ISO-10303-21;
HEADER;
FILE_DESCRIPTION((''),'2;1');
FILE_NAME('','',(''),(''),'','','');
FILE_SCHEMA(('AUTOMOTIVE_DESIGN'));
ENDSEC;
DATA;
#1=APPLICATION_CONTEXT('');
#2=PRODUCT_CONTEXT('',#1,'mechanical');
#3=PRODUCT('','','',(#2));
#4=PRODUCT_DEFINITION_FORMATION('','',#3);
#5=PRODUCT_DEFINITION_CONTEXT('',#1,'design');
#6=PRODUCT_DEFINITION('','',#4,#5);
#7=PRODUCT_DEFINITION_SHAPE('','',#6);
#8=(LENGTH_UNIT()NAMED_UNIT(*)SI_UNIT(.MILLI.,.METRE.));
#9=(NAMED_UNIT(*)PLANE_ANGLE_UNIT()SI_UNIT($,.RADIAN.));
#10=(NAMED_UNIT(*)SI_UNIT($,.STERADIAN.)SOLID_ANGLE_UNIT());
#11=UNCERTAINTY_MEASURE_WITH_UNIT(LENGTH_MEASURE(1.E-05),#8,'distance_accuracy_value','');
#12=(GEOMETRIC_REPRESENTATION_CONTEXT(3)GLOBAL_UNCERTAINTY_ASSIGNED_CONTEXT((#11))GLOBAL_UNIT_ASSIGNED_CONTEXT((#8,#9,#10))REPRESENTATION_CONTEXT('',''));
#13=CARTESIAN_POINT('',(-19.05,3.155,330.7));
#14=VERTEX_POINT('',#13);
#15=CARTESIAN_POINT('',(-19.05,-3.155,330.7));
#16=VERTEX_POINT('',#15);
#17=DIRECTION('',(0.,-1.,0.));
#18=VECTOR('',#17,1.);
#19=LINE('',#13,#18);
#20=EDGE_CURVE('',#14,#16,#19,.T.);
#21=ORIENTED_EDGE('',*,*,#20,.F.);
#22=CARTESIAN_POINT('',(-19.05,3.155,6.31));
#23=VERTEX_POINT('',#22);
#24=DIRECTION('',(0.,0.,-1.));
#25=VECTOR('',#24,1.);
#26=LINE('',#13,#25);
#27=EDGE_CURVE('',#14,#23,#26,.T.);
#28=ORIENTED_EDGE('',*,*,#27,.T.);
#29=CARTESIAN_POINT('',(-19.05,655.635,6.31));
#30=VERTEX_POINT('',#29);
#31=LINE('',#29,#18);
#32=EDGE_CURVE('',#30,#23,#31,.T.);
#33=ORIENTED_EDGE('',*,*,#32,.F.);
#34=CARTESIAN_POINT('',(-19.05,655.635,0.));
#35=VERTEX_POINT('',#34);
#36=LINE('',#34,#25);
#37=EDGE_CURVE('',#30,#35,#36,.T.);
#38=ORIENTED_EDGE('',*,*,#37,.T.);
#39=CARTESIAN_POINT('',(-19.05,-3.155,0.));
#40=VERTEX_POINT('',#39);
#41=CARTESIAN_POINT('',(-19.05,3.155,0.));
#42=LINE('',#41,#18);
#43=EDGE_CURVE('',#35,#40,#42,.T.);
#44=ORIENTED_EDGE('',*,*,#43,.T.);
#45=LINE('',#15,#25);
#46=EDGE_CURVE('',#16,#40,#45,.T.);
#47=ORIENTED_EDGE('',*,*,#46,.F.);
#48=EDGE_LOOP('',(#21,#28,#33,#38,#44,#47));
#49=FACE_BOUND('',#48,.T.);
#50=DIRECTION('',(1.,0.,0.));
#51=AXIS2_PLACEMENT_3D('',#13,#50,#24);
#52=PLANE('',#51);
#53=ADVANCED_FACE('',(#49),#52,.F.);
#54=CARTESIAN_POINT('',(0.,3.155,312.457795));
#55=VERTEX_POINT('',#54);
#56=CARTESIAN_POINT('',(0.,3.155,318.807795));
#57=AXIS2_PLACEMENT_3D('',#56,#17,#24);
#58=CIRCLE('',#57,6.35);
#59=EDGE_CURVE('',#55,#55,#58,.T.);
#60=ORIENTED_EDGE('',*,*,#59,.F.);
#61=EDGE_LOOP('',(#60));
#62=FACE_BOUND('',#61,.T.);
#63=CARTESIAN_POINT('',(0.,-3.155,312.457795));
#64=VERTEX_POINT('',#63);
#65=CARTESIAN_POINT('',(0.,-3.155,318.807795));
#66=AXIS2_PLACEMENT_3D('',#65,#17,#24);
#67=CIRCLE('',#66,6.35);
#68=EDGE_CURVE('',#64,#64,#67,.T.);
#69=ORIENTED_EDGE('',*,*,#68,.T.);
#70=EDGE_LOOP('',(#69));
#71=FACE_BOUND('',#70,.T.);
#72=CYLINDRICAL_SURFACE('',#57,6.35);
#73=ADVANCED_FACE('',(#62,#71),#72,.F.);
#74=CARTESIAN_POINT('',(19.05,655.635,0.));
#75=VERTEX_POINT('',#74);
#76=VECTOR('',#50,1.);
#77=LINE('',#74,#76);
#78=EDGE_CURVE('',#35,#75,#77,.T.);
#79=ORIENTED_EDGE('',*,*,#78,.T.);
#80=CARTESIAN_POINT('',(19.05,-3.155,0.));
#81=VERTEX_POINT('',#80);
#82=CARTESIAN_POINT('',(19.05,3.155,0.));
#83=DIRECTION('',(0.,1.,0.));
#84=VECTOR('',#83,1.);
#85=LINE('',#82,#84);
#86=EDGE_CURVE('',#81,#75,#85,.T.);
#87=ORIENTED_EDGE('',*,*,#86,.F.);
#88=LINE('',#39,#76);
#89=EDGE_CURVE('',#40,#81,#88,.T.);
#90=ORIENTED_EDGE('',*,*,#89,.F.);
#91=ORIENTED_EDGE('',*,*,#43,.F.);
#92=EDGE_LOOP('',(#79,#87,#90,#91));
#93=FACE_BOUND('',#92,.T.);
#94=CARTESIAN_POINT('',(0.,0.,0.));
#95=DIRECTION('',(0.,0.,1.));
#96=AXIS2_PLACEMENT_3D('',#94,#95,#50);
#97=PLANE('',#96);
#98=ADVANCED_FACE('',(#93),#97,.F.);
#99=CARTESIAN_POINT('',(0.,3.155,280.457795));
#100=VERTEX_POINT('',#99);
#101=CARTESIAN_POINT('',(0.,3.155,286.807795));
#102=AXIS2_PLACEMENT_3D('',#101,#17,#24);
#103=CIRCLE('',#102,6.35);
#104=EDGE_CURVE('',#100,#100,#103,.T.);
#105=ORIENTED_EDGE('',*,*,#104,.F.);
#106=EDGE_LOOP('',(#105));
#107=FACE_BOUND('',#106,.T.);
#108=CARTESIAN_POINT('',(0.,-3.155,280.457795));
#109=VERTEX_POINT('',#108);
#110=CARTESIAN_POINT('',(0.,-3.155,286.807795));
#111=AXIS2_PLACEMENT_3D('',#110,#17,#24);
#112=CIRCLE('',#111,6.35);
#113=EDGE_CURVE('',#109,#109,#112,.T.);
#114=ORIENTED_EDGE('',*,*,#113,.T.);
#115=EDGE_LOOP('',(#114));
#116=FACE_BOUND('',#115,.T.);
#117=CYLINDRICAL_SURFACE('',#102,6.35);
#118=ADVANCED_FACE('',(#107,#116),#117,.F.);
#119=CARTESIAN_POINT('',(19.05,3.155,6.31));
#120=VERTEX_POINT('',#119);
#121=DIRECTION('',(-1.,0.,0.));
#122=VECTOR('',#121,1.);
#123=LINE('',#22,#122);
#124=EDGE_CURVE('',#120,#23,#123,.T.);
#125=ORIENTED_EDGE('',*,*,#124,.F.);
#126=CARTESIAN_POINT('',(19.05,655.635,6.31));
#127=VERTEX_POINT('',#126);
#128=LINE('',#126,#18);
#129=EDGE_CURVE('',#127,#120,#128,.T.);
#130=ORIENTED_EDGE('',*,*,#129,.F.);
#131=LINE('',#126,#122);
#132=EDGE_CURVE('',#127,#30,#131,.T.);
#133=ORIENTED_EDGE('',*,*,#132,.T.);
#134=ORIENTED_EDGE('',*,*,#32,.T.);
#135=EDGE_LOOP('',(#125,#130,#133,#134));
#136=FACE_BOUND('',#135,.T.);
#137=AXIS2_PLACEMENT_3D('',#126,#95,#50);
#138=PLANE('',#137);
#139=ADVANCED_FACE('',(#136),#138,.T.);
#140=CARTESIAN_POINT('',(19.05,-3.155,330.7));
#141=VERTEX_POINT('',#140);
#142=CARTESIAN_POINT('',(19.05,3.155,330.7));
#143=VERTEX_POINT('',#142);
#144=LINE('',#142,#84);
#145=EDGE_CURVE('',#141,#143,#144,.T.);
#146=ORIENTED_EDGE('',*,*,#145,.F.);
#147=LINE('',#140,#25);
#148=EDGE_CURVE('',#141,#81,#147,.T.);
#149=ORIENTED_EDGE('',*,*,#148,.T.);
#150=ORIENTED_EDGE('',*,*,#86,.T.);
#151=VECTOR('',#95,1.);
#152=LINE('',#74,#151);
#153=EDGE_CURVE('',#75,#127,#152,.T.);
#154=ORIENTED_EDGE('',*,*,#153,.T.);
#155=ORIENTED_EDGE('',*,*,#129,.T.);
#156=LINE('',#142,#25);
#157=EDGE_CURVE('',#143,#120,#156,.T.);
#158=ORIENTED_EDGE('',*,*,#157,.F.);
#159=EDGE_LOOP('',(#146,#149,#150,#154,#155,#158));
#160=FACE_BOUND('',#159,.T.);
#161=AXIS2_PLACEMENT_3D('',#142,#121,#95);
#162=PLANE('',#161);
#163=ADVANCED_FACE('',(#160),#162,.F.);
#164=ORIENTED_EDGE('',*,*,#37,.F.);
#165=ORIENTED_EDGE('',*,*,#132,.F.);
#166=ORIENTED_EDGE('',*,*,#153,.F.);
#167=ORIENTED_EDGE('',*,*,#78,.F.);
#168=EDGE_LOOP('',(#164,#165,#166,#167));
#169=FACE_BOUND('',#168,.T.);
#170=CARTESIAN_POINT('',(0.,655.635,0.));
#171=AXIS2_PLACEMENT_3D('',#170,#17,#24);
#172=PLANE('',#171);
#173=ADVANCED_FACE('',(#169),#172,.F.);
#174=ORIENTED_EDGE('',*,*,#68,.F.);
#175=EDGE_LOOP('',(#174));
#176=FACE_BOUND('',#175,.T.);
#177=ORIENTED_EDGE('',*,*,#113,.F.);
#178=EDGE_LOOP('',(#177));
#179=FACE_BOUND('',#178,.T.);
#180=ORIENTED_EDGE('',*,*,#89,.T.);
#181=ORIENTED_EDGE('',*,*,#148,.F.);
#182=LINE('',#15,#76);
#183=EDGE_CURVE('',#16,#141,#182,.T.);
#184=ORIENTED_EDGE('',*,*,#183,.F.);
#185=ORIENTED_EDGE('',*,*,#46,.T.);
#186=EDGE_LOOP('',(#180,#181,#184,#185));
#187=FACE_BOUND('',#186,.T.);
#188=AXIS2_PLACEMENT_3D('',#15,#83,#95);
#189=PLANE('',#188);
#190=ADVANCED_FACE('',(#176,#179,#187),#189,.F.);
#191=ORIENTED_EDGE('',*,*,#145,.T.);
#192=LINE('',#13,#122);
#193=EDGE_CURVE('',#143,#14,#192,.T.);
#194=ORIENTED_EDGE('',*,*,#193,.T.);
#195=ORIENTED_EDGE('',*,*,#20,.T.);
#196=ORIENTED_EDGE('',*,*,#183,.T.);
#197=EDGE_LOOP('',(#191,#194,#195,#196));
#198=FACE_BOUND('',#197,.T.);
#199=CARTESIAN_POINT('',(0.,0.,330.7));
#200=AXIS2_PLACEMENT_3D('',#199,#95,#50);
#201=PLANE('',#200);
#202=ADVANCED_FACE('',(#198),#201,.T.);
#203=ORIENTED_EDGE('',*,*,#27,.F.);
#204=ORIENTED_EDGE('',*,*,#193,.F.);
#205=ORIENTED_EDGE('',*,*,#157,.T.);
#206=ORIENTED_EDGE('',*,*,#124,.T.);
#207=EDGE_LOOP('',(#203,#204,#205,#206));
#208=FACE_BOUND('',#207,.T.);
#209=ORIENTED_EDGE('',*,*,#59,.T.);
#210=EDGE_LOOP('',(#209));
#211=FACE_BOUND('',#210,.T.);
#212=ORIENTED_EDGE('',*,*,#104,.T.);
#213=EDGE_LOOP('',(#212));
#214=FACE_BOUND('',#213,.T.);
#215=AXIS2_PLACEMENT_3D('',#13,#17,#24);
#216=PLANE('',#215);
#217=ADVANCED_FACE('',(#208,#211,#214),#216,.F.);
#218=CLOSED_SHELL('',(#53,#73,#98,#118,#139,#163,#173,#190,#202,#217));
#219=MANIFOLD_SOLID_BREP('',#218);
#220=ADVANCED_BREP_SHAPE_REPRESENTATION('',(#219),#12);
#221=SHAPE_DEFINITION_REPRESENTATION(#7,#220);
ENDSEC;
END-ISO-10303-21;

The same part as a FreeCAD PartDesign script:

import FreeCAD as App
import Part
import Sketcher
Q = App.Units.Quantity

doc = App.newDocument("Part")
body = doc.addObject("PartDesign::Body", "Body")

sketch1 = body.newObject("Sketcher::SketchObject", "Sketch")
sketch1.AttachmentSupport = (doc.getObject("XY_Plane"), [""])
sketch1.MapMode = "FlatFace"
sketch1.addGeometry([
    Part.LineSegment(App.Vector(-19, 3, 0), App.Vector(-19, -3, 0)),
    Part.LineSegment(App.Vector(-19, -3, 0), App.Vector(19, -3, 0)),
    Part.LineSegment(App.Vector(19, -3, 0), App.Vector(19, 3, 0)),
    Part.LineSegment(App.Vector(19, 3, 0), App.Vector(-19, 3, 0)),
], False)
sketch1.addConstraint([
    Sketcher.Constraint("Coincident", 0, 2, 1, 1),
    Sketcher.Constraint("Coincident", 1, 2, 2, 1),
    Sketcher.Constraint("Coincident", 2, 2, 3, 1),
    Sketcher.Constraint("Coincident", 3, 2, 0, 1),
    Sketcher.Constraint("Vertical", 0),
    Sketcher.Constraint("Horizontal", 1),
    Sketcher.Constraint("Vertical", 2),
    Sketcher.Constraint("Horizontal", 3),
    Sketcher.Constraint("Symmetric", 0, 2, 2, 2, -1, 1),
    Sketcher.Constraint("DistanceX", 1, 1, 1, 2, Q("1.5 in")),
    Sketcher.Constraint("DistanceY", 0, 2, 0, 1, Q("6.31 mm")),
])
pad1 = body.newObject("PartDesign::Pad", "Pad")
pad1.Profile = sketch1
pad1.Length = 330.7

sketch2 = body.newObject("Sketcher::SketchObject", "Sketch001")
sketch2.AttachmentSupport = (doc.getObject("XZ_Plane"), [""])
sketch2.MapMode = "FlatFace"
sketch2.AttachmentOffset = App.Placement(App.Vector(0, 0, 3.155), App.Rotation())
sketch2.addGeometry([
    Part.LineSegment(App.Vector(-19, 6, 0), App.Vector(-19, 0, 0)),
    Part.LineSegment(App.Vector(-19, 0, 0), App.Vector(19, 0, 0)),
    Part.LineSegment(App.Vector(19, 0, 0), App.Vector(19, 6, 0)),
    Part.LineSegment(App.Vector(19, 6, 0), App.Vector(-19, 6, 0)),
], False)
sketch2.addConstraint([
    Sketcher.Constraint("Coincident", 0, 2, 1, 1),
    Sketcher.Constraint("Coincident", 1, 2, 2, 1),
    Sketcher.Constraint("Coincident", 2, 2, 3, 1),
    Sketcher.Constraint("Coincident", 3, 2, 0, 1),
    Sketcher.Constraint("Vertical", 0),
    Sketcher.Constraint("Horizontal", 1),
    Sketcher.Constraint("Vertical", 2),
    Sketcher.Constraint("Horizontal", 3),
    Sketcher.Constraint("Symmetric", 0, 2, 1, 2, -1, 1),
    Sketcher.Constraint("DistanceX", 1, 1, 1, 2, Q("1.5 in")),
    Sketcher.Constraint("DistanceY", 0, 2, 0, 1, Q("6.31 mm")),
])
pad2 = body.newObject("PartDesign::Pad", "Pad001")
pad2.Profile = sketch2
pad2.Length = 658.79
pad2.Reversed = True

sketch3 = body.newObject("Sketcher::SketchObject", "Sketch002")
sketch3.AttachmentSupport = (doc.getObject("XZ_Plane"), [""])
sketch3.MapMode = "FlatFace"
sketch3.AttachmentOffset = App.Placement(App.Vector(0, 0, 3.155), App.Rotation())
sketch3.addGeometry([
    Part.Circle(App.Vector(0, 287, 0), App.Vector(0, 0, 1), 6),
    Part.Circle(App.Vector(0, 319, 0), App.Vector(0, 0, 1), 6),
], False)
sketch3.addConstraint([
    Sketcher.Constraint("Equal", 0, 1),
    Sketcher.Constraint("PointOnObject", 0, 3, -2),
    Sketcher.Constraint("PointOnObject", 1, 3, -2),
    Sketcher.Constraint("Diameter", 0, Q("0.5 in")),
    Sketcher.Constraint("DistanceY", 0, 3, 1, 3, Q("32 mm")),
    Sketcher.Constraint("DistanceY", -1, 1, 0, 3, Q("286.807795 mm")),
])
pocket1 = body.newObject("PartDesign::Pocket", "Pocket")
pocket1.Profile = sketch3
pocket1.Length = 6.31

doc.recompute()
